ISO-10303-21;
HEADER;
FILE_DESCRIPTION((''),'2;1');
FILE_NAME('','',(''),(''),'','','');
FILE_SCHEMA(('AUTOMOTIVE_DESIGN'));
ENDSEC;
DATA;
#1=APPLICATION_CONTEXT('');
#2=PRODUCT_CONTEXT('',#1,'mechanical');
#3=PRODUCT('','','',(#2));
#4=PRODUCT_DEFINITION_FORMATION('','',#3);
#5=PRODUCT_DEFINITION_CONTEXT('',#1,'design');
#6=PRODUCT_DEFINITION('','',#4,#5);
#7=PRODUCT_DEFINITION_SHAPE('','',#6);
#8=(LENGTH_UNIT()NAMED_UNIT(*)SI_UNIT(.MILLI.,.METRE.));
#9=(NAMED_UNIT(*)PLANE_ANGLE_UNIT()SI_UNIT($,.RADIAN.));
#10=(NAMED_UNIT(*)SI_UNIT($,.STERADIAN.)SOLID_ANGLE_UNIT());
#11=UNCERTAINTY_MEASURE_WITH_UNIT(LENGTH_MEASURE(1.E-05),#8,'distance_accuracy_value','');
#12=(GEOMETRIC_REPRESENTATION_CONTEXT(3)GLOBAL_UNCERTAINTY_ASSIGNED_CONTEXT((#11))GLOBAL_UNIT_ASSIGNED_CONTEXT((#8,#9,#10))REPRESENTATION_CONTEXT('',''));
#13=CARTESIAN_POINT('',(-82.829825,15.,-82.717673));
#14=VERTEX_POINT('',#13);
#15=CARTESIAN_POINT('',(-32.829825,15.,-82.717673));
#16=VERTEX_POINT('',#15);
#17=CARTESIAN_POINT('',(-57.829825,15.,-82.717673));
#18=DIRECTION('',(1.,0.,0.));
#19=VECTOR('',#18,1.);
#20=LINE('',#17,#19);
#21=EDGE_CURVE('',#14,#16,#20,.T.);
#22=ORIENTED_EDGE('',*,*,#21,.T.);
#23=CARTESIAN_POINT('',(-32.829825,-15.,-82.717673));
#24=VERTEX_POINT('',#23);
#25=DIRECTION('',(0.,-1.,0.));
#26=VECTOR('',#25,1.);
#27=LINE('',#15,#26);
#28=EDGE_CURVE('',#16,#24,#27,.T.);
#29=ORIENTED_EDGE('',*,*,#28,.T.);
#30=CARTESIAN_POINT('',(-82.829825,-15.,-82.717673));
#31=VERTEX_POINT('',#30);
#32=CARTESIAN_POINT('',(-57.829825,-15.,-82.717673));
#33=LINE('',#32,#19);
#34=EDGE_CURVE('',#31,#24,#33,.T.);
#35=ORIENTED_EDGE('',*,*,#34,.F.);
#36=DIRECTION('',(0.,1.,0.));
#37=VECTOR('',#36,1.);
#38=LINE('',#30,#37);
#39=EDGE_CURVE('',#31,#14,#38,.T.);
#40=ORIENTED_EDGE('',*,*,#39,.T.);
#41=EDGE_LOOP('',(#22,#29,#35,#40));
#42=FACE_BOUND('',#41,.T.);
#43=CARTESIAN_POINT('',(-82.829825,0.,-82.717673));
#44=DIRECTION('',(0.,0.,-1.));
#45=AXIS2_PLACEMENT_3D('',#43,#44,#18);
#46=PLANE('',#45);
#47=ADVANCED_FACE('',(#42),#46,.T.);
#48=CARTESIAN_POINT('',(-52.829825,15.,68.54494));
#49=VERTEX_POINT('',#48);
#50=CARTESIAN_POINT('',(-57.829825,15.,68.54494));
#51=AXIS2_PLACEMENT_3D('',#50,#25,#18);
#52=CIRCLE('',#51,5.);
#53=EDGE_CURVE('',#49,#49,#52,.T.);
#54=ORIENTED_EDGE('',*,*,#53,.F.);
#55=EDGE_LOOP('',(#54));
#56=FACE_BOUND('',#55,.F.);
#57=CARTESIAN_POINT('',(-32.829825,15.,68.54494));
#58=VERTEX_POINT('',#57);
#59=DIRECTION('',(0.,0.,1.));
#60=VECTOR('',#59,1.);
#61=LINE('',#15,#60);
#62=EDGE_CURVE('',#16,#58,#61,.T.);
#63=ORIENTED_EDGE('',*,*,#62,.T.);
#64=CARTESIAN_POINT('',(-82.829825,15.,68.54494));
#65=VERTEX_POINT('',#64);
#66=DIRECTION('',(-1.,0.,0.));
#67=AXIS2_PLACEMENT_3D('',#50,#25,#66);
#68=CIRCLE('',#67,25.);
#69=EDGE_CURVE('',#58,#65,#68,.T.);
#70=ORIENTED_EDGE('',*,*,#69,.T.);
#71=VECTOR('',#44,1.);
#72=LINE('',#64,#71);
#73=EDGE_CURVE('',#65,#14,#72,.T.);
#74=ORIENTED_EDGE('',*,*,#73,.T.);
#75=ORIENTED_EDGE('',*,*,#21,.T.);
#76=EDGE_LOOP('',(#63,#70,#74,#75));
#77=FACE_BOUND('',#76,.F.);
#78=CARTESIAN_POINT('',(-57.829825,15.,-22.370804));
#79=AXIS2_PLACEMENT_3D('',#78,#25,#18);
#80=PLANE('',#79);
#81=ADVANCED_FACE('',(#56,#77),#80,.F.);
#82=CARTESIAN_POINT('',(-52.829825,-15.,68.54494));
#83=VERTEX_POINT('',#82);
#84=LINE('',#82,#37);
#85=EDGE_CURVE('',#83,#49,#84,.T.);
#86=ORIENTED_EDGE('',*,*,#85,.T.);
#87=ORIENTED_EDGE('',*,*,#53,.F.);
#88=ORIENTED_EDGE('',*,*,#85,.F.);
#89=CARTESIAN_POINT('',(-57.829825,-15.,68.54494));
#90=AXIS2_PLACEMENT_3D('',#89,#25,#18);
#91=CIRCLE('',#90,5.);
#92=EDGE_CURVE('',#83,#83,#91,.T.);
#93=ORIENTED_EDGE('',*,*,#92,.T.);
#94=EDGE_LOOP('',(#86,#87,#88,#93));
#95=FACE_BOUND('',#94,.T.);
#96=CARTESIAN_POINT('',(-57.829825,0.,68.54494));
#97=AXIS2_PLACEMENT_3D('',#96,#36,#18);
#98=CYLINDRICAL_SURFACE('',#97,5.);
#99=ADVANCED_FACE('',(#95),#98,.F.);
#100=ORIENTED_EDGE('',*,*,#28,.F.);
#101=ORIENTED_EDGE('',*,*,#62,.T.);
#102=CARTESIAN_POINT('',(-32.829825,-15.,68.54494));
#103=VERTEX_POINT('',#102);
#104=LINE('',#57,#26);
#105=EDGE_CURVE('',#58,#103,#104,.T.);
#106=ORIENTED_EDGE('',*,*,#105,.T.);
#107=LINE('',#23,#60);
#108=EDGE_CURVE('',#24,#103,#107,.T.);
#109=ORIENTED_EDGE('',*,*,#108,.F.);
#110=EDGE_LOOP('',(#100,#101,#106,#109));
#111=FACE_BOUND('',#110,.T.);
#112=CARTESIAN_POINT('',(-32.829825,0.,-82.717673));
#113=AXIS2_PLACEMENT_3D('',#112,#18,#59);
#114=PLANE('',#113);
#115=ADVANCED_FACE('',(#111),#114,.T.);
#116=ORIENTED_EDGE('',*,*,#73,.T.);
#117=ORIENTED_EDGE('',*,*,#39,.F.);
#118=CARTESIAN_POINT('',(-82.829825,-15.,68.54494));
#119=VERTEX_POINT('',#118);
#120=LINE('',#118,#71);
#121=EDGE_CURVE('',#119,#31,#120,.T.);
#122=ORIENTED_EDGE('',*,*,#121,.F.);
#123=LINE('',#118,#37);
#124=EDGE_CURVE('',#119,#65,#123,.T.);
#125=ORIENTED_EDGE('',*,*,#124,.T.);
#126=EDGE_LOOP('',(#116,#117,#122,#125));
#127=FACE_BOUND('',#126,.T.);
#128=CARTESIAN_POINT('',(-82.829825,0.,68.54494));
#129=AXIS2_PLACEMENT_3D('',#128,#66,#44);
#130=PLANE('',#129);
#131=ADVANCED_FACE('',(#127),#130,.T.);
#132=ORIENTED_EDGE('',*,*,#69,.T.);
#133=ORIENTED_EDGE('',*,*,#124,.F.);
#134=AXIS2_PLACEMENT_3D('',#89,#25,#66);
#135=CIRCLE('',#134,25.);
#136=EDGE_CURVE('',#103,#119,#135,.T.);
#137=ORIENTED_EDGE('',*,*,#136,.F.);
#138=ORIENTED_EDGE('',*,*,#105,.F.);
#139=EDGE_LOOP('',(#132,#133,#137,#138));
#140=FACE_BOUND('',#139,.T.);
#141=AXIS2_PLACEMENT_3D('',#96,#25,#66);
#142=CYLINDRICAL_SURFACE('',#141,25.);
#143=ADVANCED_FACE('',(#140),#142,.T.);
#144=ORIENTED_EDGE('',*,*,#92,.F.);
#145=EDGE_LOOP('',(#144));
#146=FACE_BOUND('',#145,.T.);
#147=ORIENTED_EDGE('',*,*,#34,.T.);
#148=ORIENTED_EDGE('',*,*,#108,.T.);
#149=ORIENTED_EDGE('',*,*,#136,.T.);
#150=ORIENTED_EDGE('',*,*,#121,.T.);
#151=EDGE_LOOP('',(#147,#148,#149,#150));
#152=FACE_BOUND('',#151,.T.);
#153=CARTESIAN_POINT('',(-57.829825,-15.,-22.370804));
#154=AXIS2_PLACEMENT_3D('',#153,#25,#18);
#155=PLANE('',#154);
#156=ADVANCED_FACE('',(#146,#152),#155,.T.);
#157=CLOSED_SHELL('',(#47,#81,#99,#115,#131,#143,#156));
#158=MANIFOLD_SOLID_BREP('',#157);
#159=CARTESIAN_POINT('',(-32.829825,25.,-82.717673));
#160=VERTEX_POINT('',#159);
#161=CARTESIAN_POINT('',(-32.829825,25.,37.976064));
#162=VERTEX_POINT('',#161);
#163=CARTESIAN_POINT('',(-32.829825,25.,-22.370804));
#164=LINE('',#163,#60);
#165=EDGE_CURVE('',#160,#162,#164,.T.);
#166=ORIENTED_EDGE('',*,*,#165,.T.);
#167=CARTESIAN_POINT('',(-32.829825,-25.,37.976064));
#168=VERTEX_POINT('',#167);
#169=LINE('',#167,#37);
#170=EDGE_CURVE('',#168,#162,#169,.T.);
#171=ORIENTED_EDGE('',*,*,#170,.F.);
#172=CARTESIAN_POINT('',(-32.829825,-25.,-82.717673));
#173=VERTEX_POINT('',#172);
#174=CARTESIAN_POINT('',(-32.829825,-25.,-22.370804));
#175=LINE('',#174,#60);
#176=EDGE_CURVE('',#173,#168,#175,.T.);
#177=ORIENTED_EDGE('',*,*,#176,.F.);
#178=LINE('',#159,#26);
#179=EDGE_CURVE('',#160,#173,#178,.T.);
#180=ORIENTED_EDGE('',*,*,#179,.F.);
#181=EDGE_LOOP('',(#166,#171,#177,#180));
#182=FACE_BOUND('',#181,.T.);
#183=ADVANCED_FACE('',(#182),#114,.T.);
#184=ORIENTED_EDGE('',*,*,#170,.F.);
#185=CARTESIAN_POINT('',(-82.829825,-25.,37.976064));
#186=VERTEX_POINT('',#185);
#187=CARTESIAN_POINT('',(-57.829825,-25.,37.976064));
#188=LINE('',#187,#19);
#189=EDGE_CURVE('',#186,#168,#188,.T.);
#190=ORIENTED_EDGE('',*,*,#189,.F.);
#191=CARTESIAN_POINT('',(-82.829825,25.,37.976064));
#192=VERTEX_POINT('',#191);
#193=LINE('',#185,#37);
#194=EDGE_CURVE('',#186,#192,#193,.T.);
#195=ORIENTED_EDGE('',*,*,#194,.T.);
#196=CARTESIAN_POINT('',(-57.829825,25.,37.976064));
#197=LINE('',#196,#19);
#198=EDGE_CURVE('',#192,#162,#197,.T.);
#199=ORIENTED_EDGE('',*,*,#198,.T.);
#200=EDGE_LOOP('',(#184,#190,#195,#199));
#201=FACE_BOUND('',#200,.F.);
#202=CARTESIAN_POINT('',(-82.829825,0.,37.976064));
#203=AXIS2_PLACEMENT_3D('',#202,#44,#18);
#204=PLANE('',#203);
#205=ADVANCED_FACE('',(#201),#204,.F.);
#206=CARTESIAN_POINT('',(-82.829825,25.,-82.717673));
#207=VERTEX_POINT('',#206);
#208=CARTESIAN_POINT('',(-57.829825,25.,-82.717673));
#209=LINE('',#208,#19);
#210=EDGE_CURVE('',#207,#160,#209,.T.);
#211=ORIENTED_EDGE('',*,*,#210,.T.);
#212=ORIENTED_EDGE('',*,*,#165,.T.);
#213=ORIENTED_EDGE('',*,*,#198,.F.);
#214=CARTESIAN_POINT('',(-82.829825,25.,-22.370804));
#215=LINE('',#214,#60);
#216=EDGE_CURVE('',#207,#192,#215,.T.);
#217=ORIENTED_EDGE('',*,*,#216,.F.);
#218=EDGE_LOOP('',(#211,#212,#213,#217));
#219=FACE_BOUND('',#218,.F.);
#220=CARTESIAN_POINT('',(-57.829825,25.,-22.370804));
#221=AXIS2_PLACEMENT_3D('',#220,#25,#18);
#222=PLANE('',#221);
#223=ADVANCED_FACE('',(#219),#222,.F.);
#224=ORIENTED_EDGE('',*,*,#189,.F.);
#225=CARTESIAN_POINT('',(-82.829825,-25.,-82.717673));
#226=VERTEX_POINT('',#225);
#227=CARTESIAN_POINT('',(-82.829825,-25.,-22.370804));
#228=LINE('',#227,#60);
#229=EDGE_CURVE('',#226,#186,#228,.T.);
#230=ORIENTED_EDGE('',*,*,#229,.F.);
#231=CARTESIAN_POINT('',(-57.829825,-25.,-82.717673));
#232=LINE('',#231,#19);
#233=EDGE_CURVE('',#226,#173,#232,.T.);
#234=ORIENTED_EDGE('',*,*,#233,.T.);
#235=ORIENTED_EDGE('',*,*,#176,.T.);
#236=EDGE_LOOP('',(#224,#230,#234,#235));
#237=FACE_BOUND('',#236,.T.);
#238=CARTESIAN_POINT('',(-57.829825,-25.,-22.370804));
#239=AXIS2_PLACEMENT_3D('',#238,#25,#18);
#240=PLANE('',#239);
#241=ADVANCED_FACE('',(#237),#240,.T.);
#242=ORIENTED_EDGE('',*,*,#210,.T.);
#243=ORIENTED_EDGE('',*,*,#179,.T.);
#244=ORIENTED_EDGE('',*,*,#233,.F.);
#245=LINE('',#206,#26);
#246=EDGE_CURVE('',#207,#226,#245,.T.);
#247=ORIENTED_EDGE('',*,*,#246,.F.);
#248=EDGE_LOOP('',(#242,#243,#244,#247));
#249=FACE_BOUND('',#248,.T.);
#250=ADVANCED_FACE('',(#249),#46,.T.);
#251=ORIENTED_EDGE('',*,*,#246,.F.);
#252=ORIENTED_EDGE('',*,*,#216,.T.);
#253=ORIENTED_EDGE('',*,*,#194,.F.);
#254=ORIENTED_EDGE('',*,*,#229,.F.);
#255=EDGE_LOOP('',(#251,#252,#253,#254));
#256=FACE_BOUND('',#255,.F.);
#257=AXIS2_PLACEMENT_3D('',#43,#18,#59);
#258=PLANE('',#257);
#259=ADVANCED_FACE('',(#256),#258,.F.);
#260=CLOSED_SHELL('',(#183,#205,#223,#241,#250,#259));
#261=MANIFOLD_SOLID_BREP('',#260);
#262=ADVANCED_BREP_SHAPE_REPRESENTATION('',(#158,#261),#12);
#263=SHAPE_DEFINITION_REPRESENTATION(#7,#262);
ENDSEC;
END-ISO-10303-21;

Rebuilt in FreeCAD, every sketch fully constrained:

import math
import FreeCAD as App
import Part
import Sketcher
Q = App.Units.Quantity


def add_polygon(sketch, points):
    """Adds a closed chain of lines whose ends are joined by coincident constraints."""
    first, n = sketch.GeometryCount, len(points)
    for a, b in zip(points, points[1:] + points[:1]):
        sketch.addGeometry(Part.LineSegment(App.Vector(*a, 0), App.Vector(*b, 0)), False)
    for i in range(n):
        sketch.addConstraint(Sketcher.Constraint("Coincident", first + i, 2, first + (i + 1) % n, 1))

doc = App.newDocument("Part")
params = doc.addObject("Spreadsheet::Sheet", "Params")
for row, (alias, value) in enumerate([
    ("sketch1_width", "50 mm"),
    ("pad1_length", "50 mm"),
    ("sketch2_diameter", "10 mm"),
    ("sketch2_radius", "25 mm"),
    ("pad2_length", "30 mm"),
], start=1):
    params.set(f"A{row}", alias)
    params.set(f"B{row}", "=" + value)
    params.setAlias(f"B{row}", alias)

body = doc.addObject("PartDesign::Body", "Body")

# Sketch on XZ plane
sketch1 = doc.addObject("Sketcher::SketchObject", "Sketch")
body.addObject(sketch1)
sketch1.AttachmentSupport = (doc.XZ_Plane, [""])
sketch1.MapMode = "FlatFace"
add_polygon(sketch1, [(-83, 38), (-83, -83), (-33, -83), (-33, 38)])  # lines 0-3
sketch1.addConstraint([
    Sketcher.Constraint("Vertical", 0),
    Sketcher.Constraint("Horizontal", 1),
    Sketcher.Constraint("Vertical", 2),
    Sketcher.Constraint("Horizontal", 3),
    Sketcher.Constraint("DistanceX", 1, 1, 1, 2, Q("50 mm")),
    Sketcher.Constraint("DistanceY", 0, 2, 0, 1, Q("120.693737 mm")),
    Sketcher.Constraint("DistanceX", 0, 2, -1, 1, Q("82.829825 mm")),
    Sketcher.Constraint("DistanceY", 0, 2, -1, 1, Q("82.717673 mm")),
])
sketch1.setExpression("Constraints[8]", "Params.sketch1_width")
pad1 = doc.addObject("PartDesign::Pad", "Pad")
body.addObject(pad1)
pad1.Profile = sketch1
pad1.setExpression("Length", "Params.pad1_length")
pad1.Midplane = True
body2 = doc.addObject("PartDesign::Body", "Body001")

# Sketch on XZ plane
sketch2 = doc.addObject("Sketcher::SketchObject", "Sketch001")
body2.addObject(sketch2)
sketch2.AttachmentSupport = (doc.getObject("XZ_Plane001"), [""])
sketch2.MapMode = "FlatFace"
sketch2.addGeometry([
    Part.LineSegment(App.Vector(-83, -83, 0), App.Vector(-33, -83, 0)),  # 0
    Part.LineSegment(App.Vector(-33, -83, 0), App.Vector(-33, 69, 0)),  # 1
    Part.ArcOfCircle(Part.Circle(App.Vector(-58, 69, 0), App.Vector(0, 0, 1), 25), math.radians(0), math.radians(180)),  # 2
    Part.LineSegment(App.Vector(-83, 69, 0), App.Vector(-83, -83, 0)),  # 3
    Part.Circle(App.Vector(-58, 69, 0), App.Vector(0, 0, 1), 5),  # 4
], False)
sketch2.addConstraint([
    Sketcher.Constraint("Coincident", 0, 2, 1, 1),
    Sketcher.Constraint("Tangent", 1, 2, 2, 1),
    Sketcher.Constraint("Tangent", 2, 2, 3, 1),
    Sketcher.Constraint("Coincident", 3, 2, 0, 1),
    Sketcher.Constraint("Horizontal", 0),
    Sketcher.Constraint("Vertical", 1),
    Sketcher.Constraint("Vertical", 3),
    Sketcher.Constraint("Coincident", 4, 3, 2, 3),
    Sketcher.Constraint("Diameter", 4, Q("10 mm")),
    Sketcher.Constraint("Radius", 2, Q("25 mm")),
    Sketcher.Constraint("DistanceY", 1, 1, 1, 2, Q("151.262612 mm")),
    Sketcher.Constraint("DistanceY", -1, 1, 2, 3, Q("68.54494 mm")),
    Sketcher.Constraint("DistanceX", 2, 3, -1, 1, Q("57.829825 mm")),
])
sketch2.setExpression("Constraints[8]", "Params.sketch2_diameter")
sketch2.setExpression("Constraints[9]", "Params.sketch2_radius")
pad2 = doc.addObject("PartDesign::Pad", "Pad001")
body2.addObject(pad2)
pad2.Profile = sketch2
pad2.setExpression("Length", "Params.pad2_length")
pad2.Midplane = True

doc.recompute()
